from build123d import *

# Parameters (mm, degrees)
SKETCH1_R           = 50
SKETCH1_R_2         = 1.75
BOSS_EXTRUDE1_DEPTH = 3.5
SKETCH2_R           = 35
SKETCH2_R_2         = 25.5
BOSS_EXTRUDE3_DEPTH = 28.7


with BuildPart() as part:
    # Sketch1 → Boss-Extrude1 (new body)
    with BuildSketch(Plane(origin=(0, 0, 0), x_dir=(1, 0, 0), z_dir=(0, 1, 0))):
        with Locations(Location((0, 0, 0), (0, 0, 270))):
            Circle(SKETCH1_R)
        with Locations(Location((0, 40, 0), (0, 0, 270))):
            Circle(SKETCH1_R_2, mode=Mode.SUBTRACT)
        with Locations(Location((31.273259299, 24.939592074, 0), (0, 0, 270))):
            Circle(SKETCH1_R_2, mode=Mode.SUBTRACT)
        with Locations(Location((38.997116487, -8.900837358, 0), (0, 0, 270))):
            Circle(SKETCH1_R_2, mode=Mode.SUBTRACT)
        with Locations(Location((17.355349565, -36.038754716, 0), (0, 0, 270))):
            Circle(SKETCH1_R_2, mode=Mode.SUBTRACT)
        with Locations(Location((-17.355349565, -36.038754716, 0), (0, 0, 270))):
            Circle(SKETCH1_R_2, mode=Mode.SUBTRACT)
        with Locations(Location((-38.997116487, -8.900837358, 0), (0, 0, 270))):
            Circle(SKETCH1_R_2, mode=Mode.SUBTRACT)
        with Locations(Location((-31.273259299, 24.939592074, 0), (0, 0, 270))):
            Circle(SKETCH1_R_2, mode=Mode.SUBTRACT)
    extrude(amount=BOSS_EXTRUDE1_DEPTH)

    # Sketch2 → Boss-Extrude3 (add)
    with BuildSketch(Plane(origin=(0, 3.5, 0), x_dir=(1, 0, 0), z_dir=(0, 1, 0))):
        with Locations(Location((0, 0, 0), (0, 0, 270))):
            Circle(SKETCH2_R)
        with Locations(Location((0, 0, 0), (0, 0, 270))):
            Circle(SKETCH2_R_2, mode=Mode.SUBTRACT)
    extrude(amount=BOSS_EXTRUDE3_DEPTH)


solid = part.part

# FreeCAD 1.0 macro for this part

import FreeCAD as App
import Part
import Sketcher

V = App.Vector

doc = App.newDocument("Part")
body = doc.addObject("PartDesign::Body", "Body")

# Sketch on XZ plane
sketch1 = body.newObject("Sketcher::SketchObject", "Sketch")
sketch1.AttachmentSupport = (doc.getObject("XZ_Plane"), [""])
sketch1.MapMode = "FlatFace"
sketch1.addGeometry([
    Part.Circle(V(0, 0, 0), V(0, 0, 1), 50),  # 0
    Part.Circle(V(-31.273259, -24.939592, 0), V(0, 0, 1), 1.75),  # 1
    Part.Circle(V(0, -40, 0), V(0, 0, 1), 1.75),  # 2
    Part.Circle(V(-38.997116, 8.900837, 0), V(0, 0, 1), 1.75),  # 3
    Part.Circle(V(-17.35535, 36.038755, 0), V(0, 0, 1), 1.75),  # 4
    Part.Circle(V(31.273259, -24.939592, 0), V(0, 0, 1), 1.75),  # 5
    Part.Circle(V(17.35535, 36.038755, 0), V(0, 0, 1), 1.75),  # 6
    Part.Circle(V(38.997116, 8.900837, 0), V(0, 0, 1), 1.75),  # 7
], False)
sketch1.addConstraint([
    Sketcher.Constraint("Coincident", 0, 3, -1, 1),
    Sketcher.Constraint("Equal", 1, 2),
    Sketcher.Constraint("Equal", 2, 3),
    Sketcher.Constraint("Equal", 3, 4),
    Sketcher.Constraint("Equal", 4, 5),
    Sketcher.Constraint("Equal", 5, 6),
    Sketcher.Constraint("Equal", 6, 7),
    Sketcher.Constraint("Symmetric", 1, 3, 5, 3, -2),
    Sketcher.Constraint("Symmetric", 4, 3, 6, 3, -2),
    Sketcher.Constraint("Symmetric", 3, 3, 7, 3, -2),
    Sketcher.Constraint("PointOnObject", 2, 3, -2),
    Sketcher.Constraint("Diameter", 0, 100.0),
    Sketcher.Constraint("Diameter", 1, 3.5),
    Sketcher.Constraint("DistanceY", 2, 3, -1, 1, 40.0),
    Sketcher.Constraint("DistanceX", 4, 3, 6, 3, 34.710699),
    Sketcher.Constraint("DistanceX", 1, 3, -1, 1, 31.273259),
    Sketcher.Constraint("DistanceY", 1, 3, 3, 3, 33.840429),
    Sketcher.Constraint("DistanceY", 1, 3, -1, 1, 24.939592),
    Sketcher.Constraint("DistanceX", 3, 3, -1, 1, 38.997116),
    Sketcher.Constraint("DistanceY", -1, 1, 4, 3, 36.038755),
])
pad1 = body.newObject("PartDesign::Pad", "Pad")
pad1.Profile = sketch1
pad1.Length = 3.5
pad1.Reversed = True

# Sketch on XZ plane
sketch2 = body.newObject("Sketcher::SketchObject", "Sketch001")
sketch2.AttachmentSupport = (doc.getObject("XZ_Plane"), [""])
sketch2.MapMode = "FlatFace"
sketch2.AttachmentOffset = App.Placement(V(0, 0, -3.5), App.Rotation())
sketch2.addGeometry([
    Part.Circle(V(0, 0, 0), V(0, 0, 1), 35),
    Part.Circle(V(0, 0, 0), V(0, 0, 1), 25.5),
], False)
sketch2.addConstraint([
    Sketcher.Constraint("Coincident", 0, 3, -1, 1),
    Sketcher.Constraint("Coincident", 1, 3, -1, 1),
    Sketcher.Constraint("Diameter", 0, 70.0),
    Sketcher.Constraint("Diameter", 1, 51.0),
])
pad2 = body.newObject("PartDesign::Pad", "Pad001")
pad2.Profile = sketch2
pad2.Length = 28.7
pad2.Reversed = True

doc.recompute()
